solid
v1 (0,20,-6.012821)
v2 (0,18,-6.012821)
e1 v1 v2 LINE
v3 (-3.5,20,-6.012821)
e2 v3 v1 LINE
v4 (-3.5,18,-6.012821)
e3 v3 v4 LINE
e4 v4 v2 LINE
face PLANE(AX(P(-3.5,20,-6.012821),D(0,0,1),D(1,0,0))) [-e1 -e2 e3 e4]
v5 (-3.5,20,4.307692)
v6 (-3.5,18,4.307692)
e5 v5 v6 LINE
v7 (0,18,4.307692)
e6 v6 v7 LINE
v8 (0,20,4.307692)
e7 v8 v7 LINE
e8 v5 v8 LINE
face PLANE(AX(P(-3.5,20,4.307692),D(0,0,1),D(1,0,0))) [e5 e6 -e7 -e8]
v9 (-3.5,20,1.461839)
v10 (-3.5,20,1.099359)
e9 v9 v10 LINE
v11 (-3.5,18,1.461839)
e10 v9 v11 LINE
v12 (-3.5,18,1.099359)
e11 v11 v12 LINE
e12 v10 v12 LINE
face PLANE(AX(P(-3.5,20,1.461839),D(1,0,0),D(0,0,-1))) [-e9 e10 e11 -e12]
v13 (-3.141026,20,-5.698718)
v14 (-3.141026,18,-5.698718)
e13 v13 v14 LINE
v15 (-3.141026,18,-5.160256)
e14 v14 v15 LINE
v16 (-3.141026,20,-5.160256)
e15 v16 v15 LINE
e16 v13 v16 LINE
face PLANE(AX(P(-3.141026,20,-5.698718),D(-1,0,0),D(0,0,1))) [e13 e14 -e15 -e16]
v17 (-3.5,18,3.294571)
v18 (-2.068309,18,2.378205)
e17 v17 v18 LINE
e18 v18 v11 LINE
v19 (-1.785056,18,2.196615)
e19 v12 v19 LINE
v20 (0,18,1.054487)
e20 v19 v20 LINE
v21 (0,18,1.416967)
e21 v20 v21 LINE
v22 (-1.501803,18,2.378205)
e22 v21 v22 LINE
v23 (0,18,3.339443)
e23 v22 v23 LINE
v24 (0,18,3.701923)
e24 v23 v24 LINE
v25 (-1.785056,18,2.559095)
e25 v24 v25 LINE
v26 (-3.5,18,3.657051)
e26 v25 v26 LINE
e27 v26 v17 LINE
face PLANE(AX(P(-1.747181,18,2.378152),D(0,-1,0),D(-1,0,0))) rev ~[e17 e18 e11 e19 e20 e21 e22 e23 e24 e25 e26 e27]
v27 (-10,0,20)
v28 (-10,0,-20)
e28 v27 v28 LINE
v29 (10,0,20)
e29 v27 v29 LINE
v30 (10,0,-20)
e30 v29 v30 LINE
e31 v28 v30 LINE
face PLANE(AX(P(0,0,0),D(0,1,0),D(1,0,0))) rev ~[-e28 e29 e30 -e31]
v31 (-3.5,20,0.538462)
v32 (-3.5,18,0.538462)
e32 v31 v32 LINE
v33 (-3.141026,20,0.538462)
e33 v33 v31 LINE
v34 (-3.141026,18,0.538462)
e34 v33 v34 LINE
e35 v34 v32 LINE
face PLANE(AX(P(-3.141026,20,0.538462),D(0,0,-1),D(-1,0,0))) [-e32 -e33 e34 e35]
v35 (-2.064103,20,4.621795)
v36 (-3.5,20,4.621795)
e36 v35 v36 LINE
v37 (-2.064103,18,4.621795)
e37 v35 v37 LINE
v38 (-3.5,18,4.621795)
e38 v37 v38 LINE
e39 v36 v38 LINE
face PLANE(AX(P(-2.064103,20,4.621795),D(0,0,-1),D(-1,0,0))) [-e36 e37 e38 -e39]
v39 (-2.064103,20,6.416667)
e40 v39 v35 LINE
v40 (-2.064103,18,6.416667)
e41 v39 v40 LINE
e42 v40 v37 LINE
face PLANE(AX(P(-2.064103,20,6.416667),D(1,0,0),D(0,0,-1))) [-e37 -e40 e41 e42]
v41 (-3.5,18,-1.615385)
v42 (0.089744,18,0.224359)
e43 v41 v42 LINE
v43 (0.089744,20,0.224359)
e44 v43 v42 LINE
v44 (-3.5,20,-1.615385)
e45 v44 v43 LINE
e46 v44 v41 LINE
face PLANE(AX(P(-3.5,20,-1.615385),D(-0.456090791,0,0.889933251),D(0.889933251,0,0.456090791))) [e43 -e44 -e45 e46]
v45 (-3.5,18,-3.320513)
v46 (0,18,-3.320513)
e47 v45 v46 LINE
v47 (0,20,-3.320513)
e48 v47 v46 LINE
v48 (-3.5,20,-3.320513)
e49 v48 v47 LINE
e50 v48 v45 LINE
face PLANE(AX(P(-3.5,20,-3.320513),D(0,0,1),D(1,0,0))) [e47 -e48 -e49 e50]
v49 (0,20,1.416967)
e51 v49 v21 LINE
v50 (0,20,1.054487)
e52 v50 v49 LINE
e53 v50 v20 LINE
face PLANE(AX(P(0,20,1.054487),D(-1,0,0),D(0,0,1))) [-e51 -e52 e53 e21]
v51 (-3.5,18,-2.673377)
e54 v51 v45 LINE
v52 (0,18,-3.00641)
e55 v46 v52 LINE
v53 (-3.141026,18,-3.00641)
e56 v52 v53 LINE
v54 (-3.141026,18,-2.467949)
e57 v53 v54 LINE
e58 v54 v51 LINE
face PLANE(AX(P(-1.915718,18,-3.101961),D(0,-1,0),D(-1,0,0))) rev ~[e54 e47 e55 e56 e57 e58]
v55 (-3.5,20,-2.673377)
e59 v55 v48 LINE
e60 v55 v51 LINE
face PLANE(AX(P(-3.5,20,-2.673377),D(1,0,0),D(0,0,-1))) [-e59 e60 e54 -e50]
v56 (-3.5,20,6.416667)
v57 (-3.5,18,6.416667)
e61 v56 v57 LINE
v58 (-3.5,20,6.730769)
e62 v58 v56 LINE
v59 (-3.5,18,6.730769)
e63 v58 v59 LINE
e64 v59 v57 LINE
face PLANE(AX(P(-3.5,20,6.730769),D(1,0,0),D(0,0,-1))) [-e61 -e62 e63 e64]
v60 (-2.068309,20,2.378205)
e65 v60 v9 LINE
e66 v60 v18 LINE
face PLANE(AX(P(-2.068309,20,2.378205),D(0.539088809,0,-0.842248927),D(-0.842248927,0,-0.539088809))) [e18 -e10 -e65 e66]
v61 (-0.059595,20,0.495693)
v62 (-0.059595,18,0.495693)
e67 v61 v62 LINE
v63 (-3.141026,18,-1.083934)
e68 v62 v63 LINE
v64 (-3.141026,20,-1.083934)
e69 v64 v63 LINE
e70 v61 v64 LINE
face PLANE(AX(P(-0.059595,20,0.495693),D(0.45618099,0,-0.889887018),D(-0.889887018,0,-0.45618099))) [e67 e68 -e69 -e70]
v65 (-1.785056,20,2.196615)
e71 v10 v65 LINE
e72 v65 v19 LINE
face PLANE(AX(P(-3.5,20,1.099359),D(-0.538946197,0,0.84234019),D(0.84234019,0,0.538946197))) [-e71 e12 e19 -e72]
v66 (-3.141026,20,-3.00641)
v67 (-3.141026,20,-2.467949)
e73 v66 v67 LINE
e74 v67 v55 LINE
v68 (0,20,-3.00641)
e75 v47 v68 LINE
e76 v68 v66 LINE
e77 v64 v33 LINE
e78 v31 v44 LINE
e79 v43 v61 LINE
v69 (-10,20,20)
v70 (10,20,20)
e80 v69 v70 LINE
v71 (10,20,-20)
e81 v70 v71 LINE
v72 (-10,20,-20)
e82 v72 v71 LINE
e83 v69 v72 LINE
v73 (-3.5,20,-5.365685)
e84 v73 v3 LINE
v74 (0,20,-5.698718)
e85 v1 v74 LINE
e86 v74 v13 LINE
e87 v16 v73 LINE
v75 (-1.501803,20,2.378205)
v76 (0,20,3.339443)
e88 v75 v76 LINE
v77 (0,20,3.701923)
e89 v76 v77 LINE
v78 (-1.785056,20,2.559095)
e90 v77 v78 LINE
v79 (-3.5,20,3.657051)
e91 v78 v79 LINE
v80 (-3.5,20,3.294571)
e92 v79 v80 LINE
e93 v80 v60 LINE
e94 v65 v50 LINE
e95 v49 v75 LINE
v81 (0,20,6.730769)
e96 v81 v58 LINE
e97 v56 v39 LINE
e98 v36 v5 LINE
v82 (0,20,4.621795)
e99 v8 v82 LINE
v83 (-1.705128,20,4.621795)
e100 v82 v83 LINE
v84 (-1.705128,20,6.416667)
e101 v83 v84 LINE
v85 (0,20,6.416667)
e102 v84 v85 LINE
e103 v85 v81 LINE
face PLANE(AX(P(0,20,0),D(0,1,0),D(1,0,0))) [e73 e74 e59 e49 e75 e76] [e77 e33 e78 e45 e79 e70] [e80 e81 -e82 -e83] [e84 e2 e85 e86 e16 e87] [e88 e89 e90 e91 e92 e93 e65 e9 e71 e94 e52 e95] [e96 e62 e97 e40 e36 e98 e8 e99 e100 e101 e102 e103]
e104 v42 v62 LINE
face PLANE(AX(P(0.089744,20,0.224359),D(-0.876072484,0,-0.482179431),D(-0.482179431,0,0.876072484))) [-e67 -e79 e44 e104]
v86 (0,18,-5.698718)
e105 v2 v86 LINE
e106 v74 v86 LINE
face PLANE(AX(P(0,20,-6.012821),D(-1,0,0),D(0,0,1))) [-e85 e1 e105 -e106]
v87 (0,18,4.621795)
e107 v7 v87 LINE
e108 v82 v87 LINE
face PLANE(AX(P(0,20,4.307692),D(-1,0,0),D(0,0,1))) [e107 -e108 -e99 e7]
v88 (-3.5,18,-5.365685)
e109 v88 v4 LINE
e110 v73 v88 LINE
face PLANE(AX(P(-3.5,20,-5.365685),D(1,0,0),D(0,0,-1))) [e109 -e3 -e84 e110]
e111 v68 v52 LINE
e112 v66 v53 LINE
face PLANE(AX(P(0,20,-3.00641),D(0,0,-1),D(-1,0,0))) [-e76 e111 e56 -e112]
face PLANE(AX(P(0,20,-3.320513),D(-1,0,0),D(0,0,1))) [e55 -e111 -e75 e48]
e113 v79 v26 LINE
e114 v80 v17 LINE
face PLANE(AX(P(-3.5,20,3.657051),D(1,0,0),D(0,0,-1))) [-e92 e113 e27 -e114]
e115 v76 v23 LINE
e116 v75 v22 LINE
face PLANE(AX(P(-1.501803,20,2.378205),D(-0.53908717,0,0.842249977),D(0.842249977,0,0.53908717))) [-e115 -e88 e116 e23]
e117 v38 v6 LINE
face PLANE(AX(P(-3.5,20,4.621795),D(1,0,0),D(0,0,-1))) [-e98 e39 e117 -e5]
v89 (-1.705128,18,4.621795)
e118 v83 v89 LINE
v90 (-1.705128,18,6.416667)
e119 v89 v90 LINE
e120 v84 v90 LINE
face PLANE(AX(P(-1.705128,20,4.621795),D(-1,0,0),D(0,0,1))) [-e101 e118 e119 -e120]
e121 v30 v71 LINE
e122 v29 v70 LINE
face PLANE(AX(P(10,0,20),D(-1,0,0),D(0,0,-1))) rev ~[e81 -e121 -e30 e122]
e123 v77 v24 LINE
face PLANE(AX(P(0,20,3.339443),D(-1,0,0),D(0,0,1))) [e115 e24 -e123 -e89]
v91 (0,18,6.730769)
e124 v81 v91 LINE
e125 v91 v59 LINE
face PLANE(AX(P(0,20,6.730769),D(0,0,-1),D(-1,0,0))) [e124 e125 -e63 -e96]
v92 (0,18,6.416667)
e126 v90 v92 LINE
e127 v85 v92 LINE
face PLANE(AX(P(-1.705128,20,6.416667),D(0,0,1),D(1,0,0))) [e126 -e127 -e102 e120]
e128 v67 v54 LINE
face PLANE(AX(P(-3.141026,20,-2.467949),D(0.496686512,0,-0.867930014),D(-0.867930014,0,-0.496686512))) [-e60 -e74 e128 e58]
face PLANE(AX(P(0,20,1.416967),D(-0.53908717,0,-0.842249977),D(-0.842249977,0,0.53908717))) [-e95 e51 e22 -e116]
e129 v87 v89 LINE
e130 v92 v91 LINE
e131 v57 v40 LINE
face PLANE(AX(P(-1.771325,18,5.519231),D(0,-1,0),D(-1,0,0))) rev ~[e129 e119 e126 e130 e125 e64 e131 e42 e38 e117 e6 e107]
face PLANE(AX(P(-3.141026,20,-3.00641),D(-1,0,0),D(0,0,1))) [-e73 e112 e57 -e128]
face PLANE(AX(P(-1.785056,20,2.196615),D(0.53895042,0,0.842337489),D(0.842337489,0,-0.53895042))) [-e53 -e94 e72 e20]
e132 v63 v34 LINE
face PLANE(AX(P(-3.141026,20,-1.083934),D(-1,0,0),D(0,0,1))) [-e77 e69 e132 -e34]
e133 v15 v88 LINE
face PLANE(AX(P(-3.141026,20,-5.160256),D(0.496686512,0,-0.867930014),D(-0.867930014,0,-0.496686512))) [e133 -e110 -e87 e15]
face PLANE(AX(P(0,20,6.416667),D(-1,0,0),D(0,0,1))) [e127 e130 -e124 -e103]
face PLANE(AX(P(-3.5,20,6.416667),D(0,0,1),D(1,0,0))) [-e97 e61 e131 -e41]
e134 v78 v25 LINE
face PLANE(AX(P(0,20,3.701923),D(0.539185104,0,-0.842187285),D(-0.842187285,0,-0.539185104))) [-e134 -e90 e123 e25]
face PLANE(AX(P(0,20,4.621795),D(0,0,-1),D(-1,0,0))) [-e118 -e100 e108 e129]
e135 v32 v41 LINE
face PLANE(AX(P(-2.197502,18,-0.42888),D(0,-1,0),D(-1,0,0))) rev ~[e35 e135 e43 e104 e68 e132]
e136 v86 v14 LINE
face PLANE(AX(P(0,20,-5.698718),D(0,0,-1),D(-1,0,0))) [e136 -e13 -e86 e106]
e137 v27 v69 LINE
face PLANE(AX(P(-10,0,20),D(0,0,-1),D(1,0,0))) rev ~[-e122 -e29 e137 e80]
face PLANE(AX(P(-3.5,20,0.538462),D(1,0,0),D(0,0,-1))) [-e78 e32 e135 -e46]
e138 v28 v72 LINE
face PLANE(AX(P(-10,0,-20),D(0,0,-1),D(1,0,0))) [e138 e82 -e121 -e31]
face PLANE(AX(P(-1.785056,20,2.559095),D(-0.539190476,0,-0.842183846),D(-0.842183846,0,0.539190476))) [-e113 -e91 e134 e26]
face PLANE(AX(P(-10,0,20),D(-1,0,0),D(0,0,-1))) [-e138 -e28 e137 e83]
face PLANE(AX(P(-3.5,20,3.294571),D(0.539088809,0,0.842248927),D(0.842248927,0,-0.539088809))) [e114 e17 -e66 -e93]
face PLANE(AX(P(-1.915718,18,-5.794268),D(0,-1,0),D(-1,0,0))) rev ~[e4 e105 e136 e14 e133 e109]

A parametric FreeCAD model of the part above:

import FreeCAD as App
import Part
import Sketcher
Q = App.Units.Quantity


def add_polygon(sketch, points):
    """Adds a closed chain of lines whose ends are joined by coincident constraints."""
    first, n = sketch.GeometryCount, len(points)
    for a, b in zip(points, points[1:] + points[:1]):
        sketch.addGeometry(Part.LineSegment(App.Vector(*a, 0), App.Vector(*b, 0)), False)
    for i in range(n):
        sketch.addConstraint(Sketcher.Constraint("Coincident", first + i, 2, first + (i + 1) % n, 1))

doc = App.newDocument("Part")
body = doc.addObject("PartDesign::Body", "Body")

# Sketch on XZ plane
sketch1 = body.newObject("Sketcher::SketchObject", "Sketch")
sketch1.AttachmentSupport = (doc.getObject("XZ_Plane"), [""])
sketch1.MapMode = "FlatFace"
add_polygon(sketch1, [(-10, -20), (-10, 20), (10, 20), (10, -20)])  # lines 0-3
sketch1.addConstraint(Sketcher.Constraint("Vertical", 0))
sketch1.addConstraint(Sketcher.Constraint("Horizontal", 1))
sketch1.addConstraint(Sketcher.Constraint("Vertical", 2))
sketch1.addConstraint(Sketcher.Constraint("Horizontal", 3))
sketch1.addConstraint(Sketcher.Constraint("Symmetric", 0, 2, 2, 2, -1, 1))
sketch1.addConstraint(Sketcher.Constraint("DistanceX", 1, 1, 1, 2, Q("20 mm")))
sketch1.addConstraint(Sketcher.Constraint("DistanceY", 0, 1, 0, 2, Q("40 mm")))
pad1 = body.newObject("PartDesign::Pad", "Pad")
pad1.Profile = sketch1
pad1.Length = 20
pad1.Reversed = True

# Sketch on XZ plane
sketch2 = body.newObject("Sketcher::SketchObject", "Sketch001")
sketch2.AttachmentSupport = (doc.getObject("XZ_Plane"), [""])
sketch2.MapMode = "FlatFace"
sketch2.AttachmentOffset = App.Placement(App.Vector(0, 0, -20), App.Rotation())
add_polygon(sketch2, [(-3.5, 6.416667), (-3.5, 6.730769), (0, 6.730769), (0, 6.416667), (-1.705128, 6.416667), (-1.705128, 4.621795), (0, 4.621795), (0, 4.307692), (-3.5, 4.307692), (-3.5, 4.621795), (-2.064103, 4.621795), (-2.064103, 6.416667)])  # lines 0-11
add_polygon(sketch2, [(-3.5, 3.294571), (-3.5, 3.657051), (-1.785056, 2.559095), (0, 3.701923), (0, 3.339443), (-1.501803, 2.378205), (0, 1.416967), (0, 1.054487), (-1.785056, 2.196615), (-3.5, 1.099359), (-3.5, 1.461839), (-2.068309, 2.378205)])  # lines 12-23
add_polygon(sketch2, [(-3.5, -1.615385), (-3.5, 0.538462), (-3.141026, 0.538462), (-3.141026, -1.083934), (-0.059595, 0.495693), (0.089744, 0.224359)])  # lines 24-29
add_polygon(sketch2, [(-3.5, -3.320513), (-3.5, -2.673377), (-3.141026, -2.467949), (-3.141026, -3.00641), (0, -3.00641), (0, -3.320513)])  # lines 30-35
add_polygon(sketch2, [(-3.5, -6.012821), (-3.5, -5.365685), (-3.141026, -5.160256), (-3.141026, -5.698718), (0, -5.698718), (0, -6.012821)])  # lines 36-41
sketch2.addConstraint(Sketcher.Constraint("Vertical", 0))
sketch2.addConstraint(Sketcher.Constraint("Horizontal", 1))
sketch2.addConstraint(Sketcher.Constraint("Vertical", 2))
sketch2.addConstraint(Sketcher.Constraint("Horizontal", 3))
sketch2.addConstraint(Sketcher.Constraint("Vertical", 4))
sketch2.addConstraint(Sketcher.Constraint("Horizontal", 5))
sketch2.addConstraint(Sketcher.Constraint("Vertical", 6))
sketch2.addConstraint(Sketcher.Constraint("Horizontal", 7))
sketch2.addConstraint(Sketcher.Constraint("Vertical", 8))
sketch2.addConstraint(Sketcher.Constraint("Horizontal", 9))
sketch2.addConstraint(Sketcher.Constraint("Vertical", 10))
sketch2.addConstraint(Sketcher.Constraint("Horizontal", 11))
sketch2.addConstraint(Sketcher.Constraint("Vertical", 12))
sketch2.addConstraint(Sketcher.Constraint("Vertical", 15))
sketch2.addConstraint(Sketcher.Constraint("Vertical", 18))
sketch2.addConstraint(Sketcher.Constraint("Vertical", 21))
sketch2.addConstraint(Sketcher.Constraint("Vertical", 24))
sketch2.addConstraint(Sketcher.Constraint("Horizontal", 25))
sketch2.addConstraint(Sketcher.Constraint("Vertical", 26))
sketch2.addConstraint(Sketcher.Constraint("Vertical", 30))
sketch2.addConstraint(Sketcher.Constraint("Vertical", 32))
sketch2.addConstraint(Sketcher.Constraint("Horizontal", 33))
sketch2.addConstraint(Sketcher.Constraint("Vertical", 34))
sketch2.addConstraint(Sketcher.Constraint("Horizontal", 35))
sketch2.addConstraint(Sketcher.Constraint("Vertical", 36))
sketch2.addConstraint(Sketcher.Constraint("Vertical", 38))
sketch2.addConstraint(Sketcher.Constraint("Horizontal", 39))
sketch2.addConstraint(Sketcher.Constraint("Vertical", 40))
sketch2.addConstraint(Sketcher.Constraint("Horizontal", 41))
sketch2.addConstraint(Sketcher.Constraint("PointOnObject", 1, 2, -2))
sketch2.addConstraint(Sketcher.Constraint("PointOnObject", 5, 2, -2))
sketch2.addConstraint(Sketcher.Constraint("PointOnObject", 14, 2, -2))
sketch2.addConstraint(Sketcher.Constraint("PointOnObject", 17, 2, -2))
sketch2.addConstraint(Sketcher.Constraint("PointOnObject", 33, 2, -2))
sketch2.addConstraint(Sketcher.Constraint("PointOnObject", 39, 2, -2))
sketch2.addConstraint(Sketcher.Constraint("Parallel", 16, 22))
sketch2.addConstraint(Sketcher.Constraint("Parallel", 17, 23))
sketch2.addConstraint(Sketcher.Constraint("Parallel", 31, 37))
sketch2.addConstraint(Sketcher.Constraint("Horizontal", 5, 2, 8, 2))
sketch2.addConstraint(Sketcher.Constraint("Horizontal", 3, 2, 10, 2))
sketch2.addConstraint(Sketcher.Constraint("Horizontal", 16, 2, 22, 2))
sketch2.addConstraint(Sketcher.Constraint("Vertical", 0, 2, 7, 2))
sketch2.addConstraint(Sketcher.Constraint("Vertical", 11, 2, 12, 2))
sketch2.addConstraint(Sketcher.Constraint("Vertical", 13, 2, 19, 2))
sketch2.addConstraint(Sketcher.Constraint("Vertical", 12, 2, 20, 2))
sketch2.addConstraint(Sketcher.Constraint("Vertical", 23, 2, 24, 2))
sketch2.addConstraint(Sketcher.Constraint("Vertical", 29, 2, 30, 2))
sketch2.addConstraint(Sketcher.Constraint("Vertical", 26, 2, 31, 2))
sketch2.addConstraint(Sketcher.Constraint("Vertical", 35, 2, 36, 2))
sketch2.addConstraint(Sketcher.Constraint("Vertical", 32, 2, 37, 2))
sketch2.addConstraint(Sketcher.Constraint("Equal", 2, 6))
sketch2.addConstraint(Sketcher.Constraint("Equal", 12, 15))
sketch2.addConstraint(Sketcher.Constraint("Equal", 15, 18))
sketch2.addConstraint(Sketcher.Constraint("Equal", 18, 21))
sketch2.addConstraint(Sketcher.Constraint("Equal", 8, 34))
sketch2.addConstraint(Sketcher.Constraint("Equal", 30, 36))
sketch2.addConstraint(Sketcher.Constraint("Equal", 32, 38))
sketch2.addConstraint(Sketcher.Constraint("Equal", 16, 17))
sketch2.addConstraint(Sketcher.Constraint("DistanceX", 1, 1, 1, 2, Q("3.5 mm")))
sketch2.addConstraint(Sketcher.Constraint("Distance", 31, Q("0.413598 mm")))
sketch2.addConstraint(Sketcher.Constraint("DistanceX", 3, 2, 3, 1, Q("1.705128 mm")))
sketch2.addConstraint(Sketcher.Constraint("DistanceY", 4, 2, 4, 1, Q("1.794872 mm")))
sketch2.addConstraint(Sketcher.Constraint("DistanceY", 12, 1, 12, 2, Q("0.36248 mm")))
sketch2.addConstraint(Sketcher.Constraint("DistanceY", 32, 2, 32, 1, Q("0.538462 mm")))
sketch2.addConstraint(Sketcher.Constraint("DistanceY", 13, 2, 4, 2, Q("2.0627 mm")))
sketch2.addConstraint(Sketcher.Constraint("DistanceX", 9, 2, 16, 2, Q("0.5623 mm")))
sketch2.addConstraint(Sketcher.Constraint("DistanceY", 27, 2, 13, 2, Q("2.063401 mm")))
sketch2.addConstraint(Sketcher.Constraint("DistanceX", 19, 2, 28, 2, Q("1.8748 mm")))
sketch2.addConstraint(Sketcher.Constraint("DistanceY", 36, 2, 29, 2, Q("3.7503 mm")))
sketch2.addConstraint(Sketcher.Constraint("Distance", 19, Q("2.11917 mm")))
sketch2.addConstraint(Sketcher.Constraint("Distance", 27, Q("3.462721 mm")))
sketch2.addConstraint(Sketcher.Constraint("DistanceX", 9, 1, 9, 2, Q("1.435897 mm")))
sketch2.addConstraint(Sketcher.Constraint("DistanceX", 25, 1, 25, 2, Q("0.358974 mm")))
sketch2.addConstraint(Sketcher.Constraint("DistanceY", 0, 1, 0, 2, Q("0.314103 mm")))
sketch2.addConstraint(Sketcher.Constraint("DistanceY", 24, 1, 24, 2, Q("2.153846 mm")))
sketch2.addConstraint(Sketcher.Constraint("DistanceY", 26, 2, 26, 1, Q("1.622396 mm")))
sketch2.addConstraint(Sketcher.Constraint("DistanceY", -1, 1, 0, 2, Q("6.730769 mm")))
sketch2.addConstraint(Sketcher.Constraint("DistanceY", -1, 1, 12, 2, Q("3.657051 mm")))
sketch2.addConstraint(Sketcher.Constraint("DistanceY", -1, 1, 20, 2, Q("1.099359 mm")))
sketch2.addConstraint(Sketcher.Constraint("DistanceX", 22, 2, -1, 1, Q("2.068309 mm")))
sketch2.addConstraint(Sketcher.Constraint("DistanceY", -1, 1, 24, 2, Q("0.538462 mm")))
sketch2.addConstraint(Sketcher.Constraint("DistanceY", -1, 1, 28, 2, Q("0.224359 mm")))
sketch2.addConstraint(Sketcher.Constraint("DistanceY", 31, 2, -1, 1, Q("2.467949 mm")))
sketch2.addConstraint(Sketcher.Constraint("DistanceY", 19, 2, 16, 2, Q("0.181591 mm")))
pocket1 = body.newObject("PartDesign::Pocket", "Pocket")
pocket1.Profile = sketch2
pocket1.Length = 2
pocket1.Reversed = True

doc.recompute()
